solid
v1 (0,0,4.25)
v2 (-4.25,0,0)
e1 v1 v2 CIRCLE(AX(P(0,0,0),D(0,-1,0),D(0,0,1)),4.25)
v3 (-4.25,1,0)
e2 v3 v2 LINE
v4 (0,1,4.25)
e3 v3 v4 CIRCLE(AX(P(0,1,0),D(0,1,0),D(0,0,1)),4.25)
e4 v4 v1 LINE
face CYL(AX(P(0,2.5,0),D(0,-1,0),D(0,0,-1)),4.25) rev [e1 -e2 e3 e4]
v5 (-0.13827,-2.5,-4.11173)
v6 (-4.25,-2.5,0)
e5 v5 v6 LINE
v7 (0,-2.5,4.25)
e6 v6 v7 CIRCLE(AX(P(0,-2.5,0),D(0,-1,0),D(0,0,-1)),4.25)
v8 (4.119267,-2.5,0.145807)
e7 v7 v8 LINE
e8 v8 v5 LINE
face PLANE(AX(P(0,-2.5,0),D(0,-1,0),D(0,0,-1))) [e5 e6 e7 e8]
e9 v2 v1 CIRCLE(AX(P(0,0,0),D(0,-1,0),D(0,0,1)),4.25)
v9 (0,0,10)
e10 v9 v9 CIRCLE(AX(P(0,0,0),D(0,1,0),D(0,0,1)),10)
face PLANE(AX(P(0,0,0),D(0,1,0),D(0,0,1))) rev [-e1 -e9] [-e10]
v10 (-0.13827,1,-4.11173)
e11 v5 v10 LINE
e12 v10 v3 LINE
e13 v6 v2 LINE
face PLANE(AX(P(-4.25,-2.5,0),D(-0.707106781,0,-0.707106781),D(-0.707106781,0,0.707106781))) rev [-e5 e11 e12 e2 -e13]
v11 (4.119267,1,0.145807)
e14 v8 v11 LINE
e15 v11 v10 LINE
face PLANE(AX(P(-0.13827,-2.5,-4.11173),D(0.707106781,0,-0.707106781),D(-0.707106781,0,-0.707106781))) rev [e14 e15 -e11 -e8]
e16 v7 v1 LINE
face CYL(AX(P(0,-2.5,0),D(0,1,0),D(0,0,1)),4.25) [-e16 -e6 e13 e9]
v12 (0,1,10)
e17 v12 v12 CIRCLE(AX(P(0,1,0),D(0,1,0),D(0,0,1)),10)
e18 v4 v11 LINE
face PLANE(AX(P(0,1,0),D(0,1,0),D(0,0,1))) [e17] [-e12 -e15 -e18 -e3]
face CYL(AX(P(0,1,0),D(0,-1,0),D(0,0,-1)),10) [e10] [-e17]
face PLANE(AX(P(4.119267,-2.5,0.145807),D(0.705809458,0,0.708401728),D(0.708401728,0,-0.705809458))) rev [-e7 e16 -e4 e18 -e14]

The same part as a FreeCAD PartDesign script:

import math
import FreeCAD as App
import Part
import Sketcher
Q = App.Units.Quantity

doc = App.newDocument("Part")
body = doc.addObject("PartDesign::Body", "Body")

# Sketch on XZ plane
sketch1 = doc.addObject("Sketcher::SketchObject", "Sketch")
body.addObject(sketch1)
sketch1.AttachmentSupport = (doc.XZ_Plane, [""])
sketch1.MapMode = "FlatFace"
sketch1.addGeometry(Part.Circle(App.Vector(0, 0, 0), App.Vector(0, 0, 1), 10), False)
sketch1.addConstraint(Sketcher.Constraint("Coincident", 0, 3, -1, 1))
sketch1.addConstraint(Sketcher.Constraint("Diameter", 0, 20.0))
pad1 = doc.addObject("PartDesign::Pad", "Pad")
body.addObject(pad1)
pad1.Profile = sketch1
pad1.Length = 1
pad1.Reversed = True

# Sketch on XZ plane
sketch2 = doc.addObject("Sketcher::SketchObject", "Sketch001")
body.addObject(sketch2)
sketch2.AttachmentSupport = (doc.XZ_Plane, [""])
sketch2.MapMode = "FlatFace"
sketch2.addGeometry(Part.LineSegment(App.Vector(-0.13827, -4.11173, 0), App.Vector(-4.25, 0, 0)), False)
sketch2.addGeometry(Part.ArcOfCircle(Part.Circle(App.Vector(0, 0, 0), App.Vector(0, 0, 1), 4.25), math.radians(180), math.radians(270)), False)
sketch2.addGeometry(Part.ArcOfCircle(Part.Circle(App.Vector(0, 0, 0), App.Vector(0, 0, 1), 4.25), math.radians(-90), math.radians(90)), False)
sketch2.addGeometry(Part.LineSegment(App.Vector(0, 4.25, 0), App.Vector(4.119267, 0.145807, 0)), False)
sketch2.addGeometry(Part.LineSegment(App.Vector(4.119267, 0.145807, 0), App.Vector(-0.13827, -4.11173, 0)), False)
sketch2.addConstraint(Sketcher.Constraint("Coincident", 0, 2, 1, 1))
sketch2.addConstraint(Sketcher.Constraint("Tangent", 1, 2, 2, 1))
sketch2.addConstraint(Sketcher.Constraint("Coincident", 2, 2, 3, 1))
sketch2.addConstraint(Sketcher.Constraint("Coincident", 3, 2, 4, 1))
sketch2.addConstraint(Sketcher.Constraint("Coincident", 4, 2, 0, 1))
sketch2.addConstraint(Sketcher.Constraint("Coincident", 1, 3, -1, 1))
sketch2.addConstraint(Sketcher.Constraint("Equal", 1, 2))
sketch2.addConstraint(Sketcher.Constraint("PointOnObject", 0, 2, -1))
sketch2.addConstraint(Sketcher.Constraint("PointOnObject", 1, 2, -2))
sketch2.addConstraint(Sketcher.Constraint("PointOnObject", 2, 2, -2))
sketch2.addConstraint(Sketcher.Constraint("Perpendicular", 0, 4))
sketch2.addConstraint(Sketcher.Constraint("Angle", 0, Q("135 deg")))
sketch2.addConstraint(Sketcher.Constraint("Radius", 1, 4.25))
sketch2.addConstraint(Sketcher.Constraint("DistanceX", 4, 2, -1, 1, 0.13827))
sketch2.addConstraint(Sketcher.Constraint("Distance", 4, 6.021066))
pad2 = doc.addObject("PartDesign::Pad", "Pad001")
body.addObject(pad2)
pad2.Profile = sketch2
pad2.Length = 2.5

# Sketch on XZ plane
sketch3 = doc.addObject("Sketcher::SketchObject", "Sketch002")
body.addObject(sketch3)
sketch3.AttachmentSupport = (doc.XZ_Plane, [""])
sketch3.MapMode = "FlatFace"
sketch3.AttachmentOffset = App.Placement(App.Vector(0, 0, -2.5), App.Rotation())
sketch3.addGeometry(Part.LineSegment(App.Vector(-0.13827, -4.11173, 0), App.Vector(4.119267, 0.145807, 0)), False)
sketch3.addGeometry(Part.LineSegment(App.Vector(4.119267, 0.145807, 0), App.Vector(0, 4.25, 0)), False)
sketch3.addGeometry(Part.ArcOfCircle(Part.Circle(App.Vector(0, 0, 0), App.Vector(0, 0, 1), 4.25), math.radians(90), math.radians(180)), False)
sketch3.addGeometry(Part.LineSegment(App.Vector(-4.25, 0, 0), App.Vector(-0.13827, -4.11173, 0)), False)
sketch3.addConstraint(Sketcher.Constraint("Coincident", 0, 2, 1, 1))
sketch3.addConstraint(Sketcher.Constraint("Coincident", 1, 2, 2, 1))
sketch3.addConstraint(Sketcher.Constraint("Coincident", 2, 2, 3, 1))
sketch3.addConstraint(Sketcher.Constraint("Coincident", 3, 2, 0, 1))
sketch3.addConstraint(Sketcher.Constraint("Coincident", 2, 3, -1, 1))
sketch3.addConstraint(Sketcher.Constraint("PointOnObject", 1, 2, -2))
sketch3.addConstraint(Sketcher.Constraint("PointOnObject", 2, 2, -1))
sketch3.addConstraint(Sketcher.Constraint("Perpendicular", 0, 3))
sketch3.addConstraint(Sketcher.Constraint("Angle", 0, Q("45 deg")))
sketch3.addConstraint(Sketcher.Constraint("Radius", 2, 4.25))
sketch3.addConstraint(Sketcher.Constraint("DistanceX", 3, 2, -1, 1, 0.13827))
sketch3.addConstraint(Sketcher.Constraint("Distance", 0, 6.021066))
pocket1 = doc.addObject("PartDesign::Pocket", "Pocket")
body.addObject(pocket1)
pocket1.Profile = sketch3
pocket1.Length = 2.5
pocket1.Reversed = True

doc.recompute()
